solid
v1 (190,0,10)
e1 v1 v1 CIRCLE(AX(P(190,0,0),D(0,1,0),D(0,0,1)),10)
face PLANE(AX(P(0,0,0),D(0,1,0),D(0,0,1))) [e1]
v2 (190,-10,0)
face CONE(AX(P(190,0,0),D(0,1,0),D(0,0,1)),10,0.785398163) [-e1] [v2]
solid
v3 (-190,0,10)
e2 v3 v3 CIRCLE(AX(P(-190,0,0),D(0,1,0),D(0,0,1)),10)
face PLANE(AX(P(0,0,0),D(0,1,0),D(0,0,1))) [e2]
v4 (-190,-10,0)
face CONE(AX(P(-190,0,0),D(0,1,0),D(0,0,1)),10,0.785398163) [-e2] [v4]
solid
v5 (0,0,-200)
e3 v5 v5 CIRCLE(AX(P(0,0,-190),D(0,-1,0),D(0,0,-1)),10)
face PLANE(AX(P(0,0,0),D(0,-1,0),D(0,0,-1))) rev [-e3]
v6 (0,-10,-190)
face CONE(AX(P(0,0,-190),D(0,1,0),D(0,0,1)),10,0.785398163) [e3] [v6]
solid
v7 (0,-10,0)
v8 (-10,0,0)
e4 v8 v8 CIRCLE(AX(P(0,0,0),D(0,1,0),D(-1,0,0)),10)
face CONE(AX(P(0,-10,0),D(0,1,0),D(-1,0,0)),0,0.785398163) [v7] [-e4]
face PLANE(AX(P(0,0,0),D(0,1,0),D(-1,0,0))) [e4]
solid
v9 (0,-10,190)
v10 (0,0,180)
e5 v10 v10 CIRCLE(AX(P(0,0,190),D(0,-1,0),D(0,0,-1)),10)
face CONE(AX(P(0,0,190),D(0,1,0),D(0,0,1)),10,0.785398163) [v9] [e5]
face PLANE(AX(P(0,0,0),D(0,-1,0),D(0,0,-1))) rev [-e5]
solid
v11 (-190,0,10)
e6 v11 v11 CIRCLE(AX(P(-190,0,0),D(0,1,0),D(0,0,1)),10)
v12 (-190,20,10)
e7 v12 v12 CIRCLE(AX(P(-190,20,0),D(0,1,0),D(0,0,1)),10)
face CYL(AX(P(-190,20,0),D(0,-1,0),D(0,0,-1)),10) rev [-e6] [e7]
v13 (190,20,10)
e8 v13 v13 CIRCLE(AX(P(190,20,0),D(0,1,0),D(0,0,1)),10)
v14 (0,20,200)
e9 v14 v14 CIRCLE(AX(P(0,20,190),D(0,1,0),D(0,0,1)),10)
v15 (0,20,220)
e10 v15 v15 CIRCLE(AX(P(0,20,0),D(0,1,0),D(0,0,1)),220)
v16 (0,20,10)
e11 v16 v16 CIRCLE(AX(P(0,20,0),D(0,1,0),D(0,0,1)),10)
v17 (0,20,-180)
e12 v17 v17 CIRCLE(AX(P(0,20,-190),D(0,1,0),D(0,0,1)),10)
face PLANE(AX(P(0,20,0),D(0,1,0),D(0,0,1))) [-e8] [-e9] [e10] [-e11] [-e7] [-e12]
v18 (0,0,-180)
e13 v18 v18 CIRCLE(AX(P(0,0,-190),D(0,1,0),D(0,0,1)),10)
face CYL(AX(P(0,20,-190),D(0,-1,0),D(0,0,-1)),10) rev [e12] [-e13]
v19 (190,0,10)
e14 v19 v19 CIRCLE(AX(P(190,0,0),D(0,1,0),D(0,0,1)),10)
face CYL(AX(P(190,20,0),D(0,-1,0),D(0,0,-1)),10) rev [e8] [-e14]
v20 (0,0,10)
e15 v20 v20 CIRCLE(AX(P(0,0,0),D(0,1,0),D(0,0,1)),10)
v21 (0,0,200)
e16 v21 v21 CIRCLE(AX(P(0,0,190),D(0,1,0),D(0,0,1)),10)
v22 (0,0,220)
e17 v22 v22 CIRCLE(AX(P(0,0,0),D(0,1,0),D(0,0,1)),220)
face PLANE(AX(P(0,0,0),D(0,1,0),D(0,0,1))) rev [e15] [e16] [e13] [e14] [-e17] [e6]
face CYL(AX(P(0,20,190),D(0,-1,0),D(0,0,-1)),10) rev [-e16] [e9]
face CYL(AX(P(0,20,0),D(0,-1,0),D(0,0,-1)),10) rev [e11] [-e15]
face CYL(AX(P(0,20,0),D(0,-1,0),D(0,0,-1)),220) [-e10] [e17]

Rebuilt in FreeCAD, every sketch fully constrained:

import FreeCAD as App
import Part
import Sketcher

V = App.Vector
Q = App.Units.Quantity

doc = App.newDocument("Part")
body = doc.addObject("PartDesign::Body", "Body")

# Sketch on XZ plane
sketch1 = body.newObject("Sketcher::SketchObject", "Sketch")
sketch1.AttachmentSupport = (doc.getObject("XZ_Plane"), [""])
sketch1.MapMode = "FlatFace"
sketch1.addGeometry([
    Part.Circle(V(0, 0, 0), V(0, 0, 1), 220),  # 0
    Part.Circle(V(0, -190, 0), V(0, 0, 1), 10),  # 1
    Part.Circle(V(-190, 0, 0), V(0, 0, 1), 10),  # 2
    Part.Circle(V(190, 0, 0), V(0, 0, 1), 10),  # 3
    Part.Circle(V(0, 0, 0), V(0, 0, 1), 10),  # 4
    Part.Circle(V(0, 190, 0), V(0, 0, 1), 10),  # 5
], False)
sketch1.addConstraint([
    Sketcher.Constraint("Coincident", 0, 3, -1, 1),
    Sketcher.Constraint("Coincident", 4, 3, -1, 1),
    Sketcher.Constraint("Equal", 1, 2),
    Sketcher.Constraint("Equal", 2, 3),
    Sketcher.Constraint("Equal", 3, 4),
    Sketcher.Constraint("Equal", 4, 5),
    Sketcher.Constraint("Symmetric", 2, 3, 3, 3, -1, 1),
    Sketcher.Constraint("Symmetric", 1, 3, 5, 3, -1, 1),
    Sketcher.Constraint("PointOnObject", 1, 3, -2),
    Sketcher.Constraint("PointOnObject", 2, 3, -1),
    Sketcher.Constraint("Diameter", 0, Q("440 mm")),
    Sketcher.Constraint("Diameter", 1, Q("20 mm")),
    Sketcher.Constraint("DistanceY", 1, 3, -1, 1, Q("190 mm")),
    Sketcher.Constraint("DistanceX", 2, 3, -1, 1, Q("190 mm")),
])
pad1 = body.newObject("PartDesign::Pad", "Pad")
pad1.Profile = sketch1
pad1.Length = 20
pad1.Reversed = True
body2 = doc.addObject("PartDesign::Body", "Body001")

# Sketch on XY plane
sketch2 = body2.newObject("Sketcher::SketchObject", "Sketch001")
sketch2.AttachmentSupport = (doc.getObject("XY_Plane001"), [""])
sketch2.MapMode = "FlatFace"
sketch2.addGeometry([
    Part.LineSegment(V(10, 0, 0), V(0, 0, 0)),
    Part.LineSegment(V(0, 0, 0), V(0, -10, 0)),
    Part.LineSegment(V(0, -10, 0), V(10, 0, 0)),
], False)
sketch2.addConstraint([
    Sketcher.Constraint("Coincident", 0, 2, 1, 1),
    Sketcher.Constraint("Coincident", 1, 2, 2, 1),
    Sketcher.Constraint("Coincident", 2, 2, 0, 1),
    Sketcher.Constraint("Horizontal", 0),
    Sketcher.Constraint("Vertical", 1),
    Sketcher.Constraint("Coincident", 0, 2, -1, 1),
    Sketcher.Constraint("Equal", 0, 1),
    Sketcher.Constraint("DistanceX", 0, 2, 0, 1, Q("10 mm")),
])
revolution = body2.newObject("PartDesign::Revolution", "Revolution")
revolution.Profile = sketch2
revolution.ReferenceAxis = (sketch2, ["V_Axis"])
revolution.Angle = 360
body3 = doc.addObject("PartDesign::Body", "Body002")

# Sketch on XY plane
sketch3 = body3.newObject("Sketcher::SketchObject", "Sketch002")
sketch3.AttachmentSupport = (doc.getObject("XY_Plane002"), [""])
sketch3.MapMode = "FlatFace"
sketch3.addGeometry([
    Part.LineSegment(V(-180, 0, 0), V(-190, 0, 0)),
    Part.LineSegment(V(-190, 0, 0), V(-190, -10, 0)),
    Part.LineSegment(V(-190, -10, 0), V(-180, 0, 0)),
], False)
sketch3.addGeometry(Part.LineSegment(V(-190, 0, 0), V(-190, -10, 0)), True)  # axis
sketch3.addConstraint([
    Sketcher.Constraint("Coincident", 0, 2, 1, 1),
    Sketcher.Constraint("Coincident", 1, 2, 2, 1),
    Sketcher.Constraint("Coincident", 2, 2, 0, 1),
    Sketcher.Constraint("Horizontal", 0),
    Sketcher.Constraint("Vertical", 1),
    Sketcher.Constraint("Vertical", 3),
    Sketcher.Constraint("Coincident", 3, 1, 0, 2),
    Sketcher.Constraint("PointOnObject", 0, 2, -1),
    Sketcher.Constraint("Equal", 0, 1),
    Sketcher.Constraint("Equal", 1, 3),
    Sketcher.Constraint("DistanceX", 0, 2, 0, 1, Q("10 mm")),
    Sketcher.Constraint("DistanceX", 0, 2, -1, 1, Q("190 mm")),
])
revolution2 = body3.newObject("PartDesign::Revolution", "Revolution001")
revolution2.Profile = sketch3
revolution2.ReferenceAxis = (sketch3, ["Axis0"])
revolution2.Angle = 360
body4 = doc.addObject("PartDesign::Body", "Body003")

# Sketch on YZ plane
sketch4 = body4.newObject("Sketcher::SketchObject", "Sketch003")
sketch4.AttachmentSupport = (doc.getObject("YZ_Plane003"), [""])
sketch4.MapMode = "FlatFace"
sketch4.addGeometry([
    Part.LineSegment(V(0, 180, 0), V(0, 190, 0)),
    Part.LineSegment(V(0, 190, 0), V(-10, 190, 0)),
    Part.LineSegment(V(-10, 190, 0), V(0, 180, 0)),
], False)
sketch4.addGeometry(Part.LineSegment(V(-10, 190, 0), V(0, 190, 0)), True)  # axis
sketch4.addConstraint([
    Sketcher.Constraint("Coincident", 0, 2, 1, 1),
    Sketcher.Constraint("Coincident", 1, 2, 2, 1),
    Sketcher.Constraint("Coincident", 2, 2, 0, 1),
    Sketcher.Constraint("Vertical", 0),
    Sketcher.Constraint("Horizontal", 1),
    Sketcher.Constraint("Horizontal", 3),
    Sketcher.Constraint("Coincident", 3, 1, 1, 2),
    Sketcher.Constraint("PointOnObject", 0, 2, -2),
    Sketcher.Constraint("PointOnObject", 3, 2, -2),
    Sketcher.Constraint("Equal", 3, 0),
    Sketcher.Constraint("DistanceX", 1, 2, 1, 1, Q("10 mm")),
    Sketcher.Constraint("DistanceY", -1, 1, 0, 2, Q("190 mm")),
])
revolution3 = body4.newObject("PartDesign::Revolution", "Revolution002")
revolution3.Profile = sketch4
revolution3.ReferenceAxis = (sketch4, ["Axis0"])
revolution3.Angle = 360
body5 = doc.addObject("PartDesign::Body", "Body004")

# Sketch on XY plane
sketch5 = body5.newObject("Sketcher::SketchObject", "Sketch004")
sketch5.AttachmentSupport = (doc.getObject("XY_Plane004"), [""])
sketch5.MapMode = "FlatFace"
sketch5.addGeometry([
    Part.LineSegment(V(190, 0, 0), V(180, 0, 0)),
    Part.LineSegment(V(180, 0, 0), V(190, -10, 0)),
    Part.LineSegment(V(190, -10, 0), V(190, 0, 0)),
], False)
sketch5.addGeometry(Part.LineSegment(V(190, 0, 0), V(190, -10, 0)), True)  # axis
sketch5.addConstraint([
    Sketcher.Constraint("Coincident", 0, 2, 1, 1),
    Sketcher.Constraint("Coincident", 1, 2, 2, 1),
    Sketcher.Constraint("Coincident", 2, 2, 0, 1),
    Sketcher.Constraint("Horizontal", 0),
    Sketcher.Constraint("Vertical", 2),
    Sketcher.Constraint("Vertical", 3),
    Sketcher.Constraint("Coincident", 3, 1, 2, 2),
    Sketcher.Constraint("PointOnObject", 0, 2, -1),
    Sketcher.Constraint("Equal", 0, 2),
    Sketcher.Constraint("Equal", 2, 3),
    Sketcher.Constraint("DistanceX", 0, 2, 0, 1, Q("10 mm")),
    Sketcher.Constraint("DistanceX", -1, 1, 0, 2, Q("180 mm")),
])
revolution4 = body5.newObject("PartDesign::Revolution", "Revolution003")
revolution4.Profile = sketch5
revolution4.ReferenceAxis = (sketch5, ["Axis0"])
revolution4.Angle = 360
body6 = doc.addObject("PartDesign::Body", "Body005")

# Sketch on YZ plane
sketch6 = body6.newObject("Sketcher::SketchObject", "Sketch005")
sketch6.AttachmentSupport = (doc.getObject("YZ_Plane005"), [""])
sketch6.MapMode = "FlatFace"
sketch6.addGeometry([
    Part.LineSegment(V(-10, -190, 0), V(0, -190, 0)),
    Part.LineSegment(V(0, -190, 0), V(0, -180, 0)),
    Part.LineSegment(V(0, -180, 0), V(-10, -190, 0)),
], False)
sketch6.addGeometry(Part.LineSegment(V(-10, -190, 0), V(0, -190, 0)), True)  # axis
sketch6.addConstraint([
    Sketcher.Constraint("Coincident", 0, 2, 1, 1),
    Sketcher.Constraint("Coincident", 1, 2, 2, 1),
    Sketcher.Constraint("Coincident", 2, 2, 0, 1),
    Sketcher.Constraint("Horizontal", 0),
    Sketcher.Constraint("Vertical", 1),
    Sketcher.Constraint("Horizontal", 3),
    Sketcher.Constraint("Coincident", 3, 1, 2, 2),
    Sketcher.Constraint("PointOnObject", 0, 2, -2),
    Sketcher.Constraint("PointOnObject", 3, 2, -2),
    Sketcher.Constraint("Equal", 3, 1),
    Sketcher.Constraint("DistanceX", 0, 1, 0, 2, Q("10 mm")),
    Sketcher.Constraint("DistanceY", 0, 2, -1, 1, Q("190 mm")),
])
revolution5 = body6.newObject("PartDesign::Revolution", "Revolution004")
revolution5.Profile = sketch6
revolution5.ReferenceAxis = (sketch6, ["Axis0"])
revolution5.Angle = 360

doc.recompute()
